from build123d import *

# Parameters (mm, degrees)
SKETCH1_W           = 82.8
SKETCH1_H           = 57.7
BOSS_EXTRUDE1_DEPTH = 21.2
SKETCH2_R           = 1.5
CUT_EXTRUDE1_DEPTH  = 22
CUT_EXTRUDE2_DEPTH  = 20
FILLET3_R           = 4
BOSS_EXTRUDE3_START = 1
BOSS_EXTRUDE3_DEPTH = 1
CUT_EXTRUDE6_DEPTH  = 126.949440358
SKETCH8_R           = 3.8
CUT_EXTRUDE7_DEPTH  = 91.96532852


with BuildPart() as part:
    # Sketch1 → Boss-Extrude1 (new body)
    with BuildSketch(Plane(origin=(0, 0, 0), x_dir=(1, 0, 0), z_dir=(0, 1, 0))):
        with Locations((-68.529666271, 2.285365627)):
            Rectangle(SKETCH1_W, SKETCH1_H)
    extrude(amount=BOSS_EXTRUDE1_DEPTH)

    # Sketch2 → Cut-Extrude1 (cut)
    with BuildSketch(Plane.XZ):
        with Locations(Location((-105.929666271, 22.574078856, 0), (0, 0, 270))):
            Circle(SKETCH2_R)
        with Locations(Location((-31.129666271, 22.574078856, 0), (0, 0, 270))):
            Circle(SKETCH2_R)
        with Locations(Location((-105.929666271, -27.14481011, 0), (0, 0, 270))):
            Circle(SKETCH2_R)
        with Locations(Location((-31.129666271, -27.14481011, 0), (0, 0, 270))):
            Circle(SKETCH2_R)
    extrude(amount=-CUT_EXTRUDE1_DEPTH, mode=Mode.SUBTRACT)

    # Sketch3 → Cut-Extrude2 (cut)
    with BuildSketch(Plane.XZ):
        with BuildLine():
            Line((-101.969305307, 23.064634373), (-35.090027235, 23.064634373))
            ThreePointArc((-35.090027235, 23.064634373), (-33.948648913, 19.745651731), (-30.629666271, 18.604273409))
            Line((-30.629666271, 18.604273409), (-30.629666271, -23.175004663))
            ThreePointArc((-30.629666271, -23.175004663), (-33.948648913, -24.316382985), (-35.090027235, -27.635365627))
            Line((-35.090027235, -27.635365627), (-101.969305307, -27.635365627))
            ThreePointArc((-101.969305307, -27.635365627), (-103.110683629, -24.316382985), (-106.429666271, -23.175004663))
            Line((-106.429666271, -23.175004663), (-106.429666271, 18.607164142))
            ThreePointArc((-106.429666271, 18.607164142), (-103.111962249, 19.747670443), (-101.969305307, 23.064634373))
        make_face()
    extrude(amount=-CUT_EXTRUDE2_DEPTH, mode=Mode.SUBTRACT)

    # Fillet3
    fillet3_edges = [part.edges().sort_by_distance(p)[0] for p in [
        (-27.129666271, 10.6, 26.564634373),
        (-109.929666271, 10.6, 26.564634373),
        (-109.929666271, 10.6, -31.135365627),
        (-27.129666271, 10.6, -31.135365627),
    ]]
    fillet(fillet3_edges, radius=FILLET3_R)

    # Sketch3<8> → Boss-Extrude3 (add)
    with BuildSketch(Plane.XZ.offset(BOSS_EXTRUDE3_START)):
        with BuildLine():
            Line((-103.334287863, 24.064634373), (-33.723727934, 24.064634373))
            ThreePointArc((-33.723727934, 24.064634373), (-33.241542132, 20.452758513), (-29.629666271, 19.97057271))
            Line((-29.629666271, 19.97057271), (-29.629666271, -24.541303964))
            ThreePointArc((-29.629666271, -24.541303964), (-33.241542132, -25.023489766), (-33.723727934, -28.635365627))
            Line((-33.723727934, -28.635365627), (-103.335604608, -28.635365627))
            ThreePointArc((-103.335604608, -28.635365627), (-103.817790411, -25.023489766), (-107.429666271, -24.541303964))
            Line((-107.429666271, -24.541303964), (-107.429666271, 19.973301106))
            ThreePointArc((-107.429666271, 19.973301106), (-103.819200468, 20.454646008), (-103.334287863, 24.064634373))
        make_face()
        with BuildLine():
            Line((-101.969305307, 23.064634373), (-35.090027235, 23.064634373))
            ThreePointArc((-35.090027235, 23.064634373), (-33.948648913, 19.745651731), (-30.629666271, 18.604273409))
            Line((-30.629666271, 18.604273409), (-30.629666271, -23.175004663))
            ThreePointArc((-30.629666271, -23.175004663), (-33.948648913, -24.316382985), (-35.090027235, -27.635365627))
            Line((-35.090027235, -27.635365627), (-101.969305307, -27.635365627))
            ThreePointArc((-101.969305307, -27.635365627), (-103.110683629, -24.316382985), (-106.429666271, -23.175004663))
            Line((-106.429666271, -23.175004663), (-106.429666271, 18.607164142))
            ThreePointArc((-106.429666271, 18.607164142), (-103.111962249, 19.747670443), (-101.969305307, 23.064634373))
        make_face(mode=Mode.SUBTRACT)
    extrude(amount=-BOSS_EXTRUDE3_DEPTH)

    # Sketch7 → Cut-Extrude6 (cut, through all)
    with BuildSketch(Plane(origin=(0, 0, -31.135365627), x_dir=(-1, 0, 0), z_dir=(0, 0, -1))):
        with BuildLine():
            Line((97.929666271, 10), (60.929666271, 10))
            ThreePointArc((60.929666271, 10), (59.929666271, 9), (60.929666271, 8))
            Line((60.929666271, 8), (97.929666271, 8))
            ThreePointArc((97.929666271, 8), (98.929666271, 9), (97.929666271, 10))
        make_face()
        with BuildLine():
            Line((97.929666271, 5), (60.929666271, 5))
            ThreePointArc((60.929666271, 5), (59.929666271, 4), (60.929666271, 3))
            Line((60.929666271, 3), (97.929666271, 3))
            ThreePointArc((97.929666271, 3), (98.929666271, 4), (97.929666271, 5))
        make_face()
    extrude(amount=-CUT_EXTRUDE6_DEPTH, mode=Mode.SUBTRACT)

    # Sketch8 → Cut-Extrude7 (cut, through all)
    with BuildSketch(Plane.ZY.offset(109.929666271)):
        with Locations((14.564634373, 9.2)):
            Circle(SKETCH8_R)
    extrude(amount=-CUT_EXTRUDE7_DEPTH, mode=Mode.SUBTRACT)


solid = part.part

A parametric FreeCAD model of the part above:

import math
import FreeCAD as App
import Part
import Sketcher
from FreeCAD import Vector
Q = App.Units.Quantity


def edges_at(feature, points):
    """Names of the edges that pass closest to the given points."""
    edges = feature.Shape.Edges
    near = lambda p: min(range(len(edges)), key=lambda i: edges[i].distToShape(Part.Vertex(*p))[0])
    return sorted({f"Edge{near(p) + 1}" for p in points})


def add_polygon(sketch, points):
    """Adds a closed chain of lines whose ends are joined by coincident constraints."""
    first, n = sketch.GeometryCount, len(points)
    for a, b in zip(points, points[1:] + points[:1]):
        sketch.addGeometry(Part.LineSegment(App.Vector(*a, 0), App.Vector(*b, 0)), False)
    for i in range(n):
        sketch.addConstraint(Sketcher.Constraint("Coincident", first + i, 2, first + (i + 1) % n, 1))

doc = App.newDocument("Part")
params = doc.addObject("Spreadsheet::Sheet", "Params")
for row, (alias, value) in enumerate([
    ("sketch1_width", "82.8 mm"),
    ("sketch1_height", "57.7 mm"),
    ("pad1_length", "21.2 mm"),
    ("sketch2_diameter", "3 mm"),
    ("pocket1_length", "22 mm"),
    ("sketch3_radius", "4 mm"),
    ("pocket2_length", "20 mm"),
    ("fillet_radius", "4 mm"),
    ("sketch4_radius", "3 mm"),
    ("sketch4_radius2", "4 mm"),
    ("pad2_length", "1 mm"),
    ("sketch5_radius", "1 mm"),
    ("sketch5_width", "37 mm"),
    ("sketch6_diameter", "7.6 mm"),
], start=1):
    params.set(f"A{row}", alias)
    params.set(f"B{row}", "=" + value)
    params.setAlias(f"B{row}", alias)

body = doc.addObject("PartDesign::Body", "Body")

# Sketch on XZ plane
sketch1 = body.newObject("Sketcher::SketchObject", "Sketch")
sketch1.AttachmentSupport = (doc.getObject("XZ_Plane"), [""])
sketch1.MapMode = "FlatFace"
add_polygon(sketch1, [(-109.929666, -31.135366), (-109.929666, 26.564634), (-27.129666, 26.564634), (-27.129666, -31.135366)])  # lines 0-3
sketch1.addConstraint(Sketcher.Constraint("Vertical", 0))
sketch1.addConstraint(Sketcher.Constraint("Horizontal", 1))
sketch1.addConstraint(Sketcher.Constraint("Vertical", 2))
sketch1.addConstraint(Sketcher.Constraint("Horizontal", 3))
sketch1.addConstraint(Sketcher.Constraint("DistanceX", 1, 1, 1, 2, Q("82.8 mm")))
sketch1.addConstraint(Sketcher.Constraint("DistanceY", 0, 1, 0, 2, Q("57.7 mm")))
sketch1.addConstraint(Sketcher.Constraint("DistanceX", 0, 2, -1, 1, Q("109.929666 mm")))
sketch1.addConstraint(Sketcher.Constraint("DistanceY", -1, 1, 0, 2, Q("26.564634 mm")))
sketch1.setExpression("Constraints[8]", "Params.sketch1_width")
sketch1.setExpression("Constraints[9]", "Params.sketch1_height")
pad1 = body.newObject("PartDesign::Pad", "Pad")
pad1.Profile = sketch1
pad1.setExpression("Length", "Params.pad1_length")
pad1.Reversed = True

# Sketch on XZ plane
sketch2 = body.newObject("Sketcher::SketchObject", "Sketch001")
sketch2.AttachmentSupport = (doc.getObject("XZ_Plane"), [""])
sketch2.MapMode = "FlatFace"
sketch2.addGeometry(Part.Circle(Vector(-105.929666, 22.574079, 0), Vector(0, 0, 1), 1.5), False)
sketch2.addGeometry(Part.Circle(Vector(-31.129666, 22.574079, 0), Vector(0, 0, 1), 1.5), False)
sketch2.addGeometry(Part.Circle(Vector(-105.929666, -27.14481, 0), Vector(0, 0, 1), 1.5), False)
sketch2.addGeometry(Part.Circle(Vector(-31.129666, -27.14481, 0), Vector(0, 0, 1), 1.5), False)
sketch2.addConstraint(Sketcher.Constraint("Equal", 0, 1))
sketch2.addConstraint(Sketcher.Constraint("Equal", 1, 2))
sketch2.addConstraint(Sketcher.Constraint("Equal", 2, 3))
sketch2.addConstraint(Sketcher.Constraint("Horizontal", 0, 3, 1, 3))
sketch2.addConstraint(Sketcher.Constraint("Horizontal", 2, 3, 3, 3))
sketch2.addConstraint(Sketcher.Constraint("Vertical", 0, 3, 2, 3))
sketch2.addConstraint(Sketcher.Constraint("Vertical", 1, 3, 3, 3))
sketch2.addConstraint(Sketcher.Constraint("Diameter", 0, Q("3 mm")))
sketch2.addConstraint(Sketcher.Constraint("DistanceX", 0, 3, 1, 3, Q("74.8 mm")))
sketch2.addConstraint(Sketcher.Constraint("DistanceY", -1, 1, 0, 3, Q("22.574079 mm")))
sketch2.addConstraint(Sketcher.Constraint("DistanceY", 2, 3, -1, 1, Q("27.14481 mm")))
sketch2.addConstraint(Sketcher.Constraint("DistanceX", 0, 3, -1, 1, Q("105.929666 mm")))
sketch2.setExpression("Constraints[7]", "Params.sketch2_diameter")
pocket1 = body.newObject("PartDesign::Pocket", "Pocket")
pocket1.Profile = sketch2
pocket1.setExpression("Length", "Params.pocket1_length")

# Sketch on XZ plane
sketch3 = body.newObject("Sketcher::SketchObject", "Sketch002")
sketch3.AttachmentSupport = (doc.getObject("XZ_Plane"), [""])
sketch3.MapMode = "FlatFace"
sketch3.addGeometry(Part.LineSegment(Vector(-35.090027, 23.064634, 0), Vector(-101.969305, 23.064634, 0)), False)
sketch3.addGeometry(Part.ArcOfCircle(Part.Circle(Vector(-105.939472, 22.577014, 0), Vector(0, 0, 1), 4), math.radians(-97.039205), math.radians(7.00206)), False)
sketch3.addGeometry(Part.LineSegment(Vector(-106.429666, 18.607164, 0), Vector(-106.429666, -23.175005, 0)), False)
sketch3.addGeometry(Part.ArcOfCircle(Part.Circle(Vector(-105.939111, -27.14481, 0), Vector(0, 0, 1), 4), math.radians(-7.044424), math.radians(97.044424)), False)
sketch3.addGeometry(Part.LineSegment(Vector(-101.969305, -27.635366, 0), Vector(-35.090027, -27.635366, 0)), False)
sketch3.addGeometry(Part.ArcOfCircle(Part.Circle(Vector(-31.120222, -27.14481, 0), Vector(0, 0, 1), 4), math.radians(82.955576), math.radians(187.044424)), False)
sketch3.addGeometry(Part.LineSegment(Vector(-30.629666, -23.175005, 0), Vector(-30.629666, 18.604273, 0)), False)
sketch3.addGeometry(Part.ArcOfCircle(Part.Circle(Vector(-31.120222, 22.574079, 0), Vector(0, 0, 1), 4), math.radians(172.955576), math.radians(277.044424)), False)
sketch3.addConstraint(Sketcher.Constraint("Coincident", 0, 2, 1, 2))
sketch3.addConstraint(Sketcher.Constraint("Coincident", 1, 1, 2, 1))
sketch3.addConstraint(Sketcher.Constraint("Coincident", 2, 2, 3, 2))
sketch3.addConstraint(Sketcher.Constraint("Coincident", 3, 1, 4, 1))
sketch3.addConstraint(Sketcher.Constraint("Coincident", 4, 2, 5, 2))
sketch3.addConstraint(Sketcher.Constraint("Coincident", 5, 1, 6, 1))
sketch3.addConstraint(Sketcher.Constraint("Coincident", 6, 2, 7, 2))
sketch3.addConstraint(Sketcher.Constraint("Coincident", 7, 1, 0, 1))
sketch3.addConstraint(Sketcher.Constraint("Horizontal", 0))
sketch3.addConstraint(Sketcher.Constraint("Vertical", 2))
sketch3.addConstraint(Sketcher.Constraint("Horizontal", 4))
sketch3.addConstraint(Sketcher.Constraint("Vertical", 6))
sketch3.addConstraint(Sketcher.Constraint("Equal", 1, 3))
sketch3.addConstraint(Sketcher.Constraint("Equal", 3, 5))
sketch3.addConstraint(Sketcher.Constraint("Equal", 5, 7))
sketch3.addConstraint(Sketcher.Constraint("Horizontal", 3, 3, 5, 3))
sketch3.addConstraint(Sketcher.Constraint("Horizontal", 2, 2, 5, 1))
sketch3.addConstraint(Sketcher.Constraint("Vertical", 5, 3, 7, 3))
sketch3.addConstraint(Sketcher.Constraint("Vertical", 0, 2, 3, 1))
sketch3.addConstraint(Sketcher.Constraint("Vertical", 4, 2, 7, 1))
sketch3.addConstraint(Sketcher.Constraint("Radius", 1, Q("4 mm")))
sketch3.addConstraint(Sketcher.Constraint("DistanceY", 3, 1, 0, 2, Q("50.7 mm")))
sketch3.addConstraint(Sketcher.Constraint("DistanceX", 0, 2, 0, 1, Q("66.879278 mm")))
sketch3.addConstraint(Sketcher.Constraint("DistanceY", 2, 2, 2, 1, Q("41.782169 mm")))
sketch3.addConstraint(Sketcher.Constraint("DistanceY", 6, 1, 6, 2, Q("41.779278 mm")))
sketch3.addConstraint(Sketcher.Constraint("DistanceX", 3, 3, -1, 1, Q("105.939111 mm")))
sketch3.addConstraint(Sketcher.Constraint("DistanceY", 3, 3, -1, 1, Q("27.14481 mm")))
sketch3.addConstraint(Sketcher.Constraint("DistanceX", 5, 3, -1, 1, Q("31.120222 mm")))
sketch3.setExpression("Constraints[20]", "Params.sketch3_radius")
pocket2 = body.newObject("PartDesign::Pocket", "Pocket001")
pocket2.Profile = sketch3
pocket2.setExpression("Length", "Params.pocket2_length")
doc.recompute()

fillet = body.newObject("PartDesign::Fillet", "Fillet")
fillet.Base = (pocket2, edges_at(pocket2, [
    (-27.13, 10.6, 26.565),
    (-109.93, 10.6, 26.565),
    (-109.93, 10.6, -31.135),
    (-27.13, 10.6, -31.135),
]))
fillet.setExpression("Radius", "Params.fillet_radius")

# Sketch on XZ plane
sketch4 = body.newObject("Sketcher::SketchObject", "Sketch003")
sketch4.AttachmentSupport = (doc.getObject("XZ_Plane"), [""])
sketch4.MapMode = "FlatFace"
sketch4.AttachmentOffset = App.Placement(Vector(0, 0, 1), App.Rotation())
sketch4.addGeometry(Part.LineSegment(Vector(-33.723728, 24.064634, 0), Vector(-103.334288, 24.064634, 0)), False)
sketch4.addGeometry(Part.ArcOfCircle(Part.Circle(Vector(-105.939472, 22.577014, 0), Vector(0, 0, 1), 3), math.radians(-119.783979), math.radians(29.727358)), False)
sketch4.addGeometry(Part.LineSegment(Vector(-107.429666, 19.973301, 0), Vector(-107.429666, -24.541304, 0)), False)
sketch4.addGeometry(Part.ArcOfCircle(Part.Circle(Vector(-105.939111, -27.14481, 0), Vector(0, 0, 1), 3), math.radians(-29.791937), math.radians(119.791937)), False)
sketch4.addGeometry(Part.LineSegment(Vector(-103.335605, -28.635366, 0), Vector(-33.723728, -28.635366, 0)), False)
sketch4.addGeometry(Part.ArcOfCircle(Part.Circle(Vector(-31.120222, -27.14481, 0), Vector(0, 0, 1), 3), math.radians(60.208063), math.radians(209.791937)), False)
sketch4.addGeometry(Part.LineSegment(Vector(-29.629666, -24.541304, 0), Vector(-29.629666, 19.970573, 0)), False)
sketch4.addGeometry(Part.ArcOfCircle(Part.Circle(Vector(-31.120222, 22.574079, 0), Vector(0, 0, 1), 3), math.radians(150.208063), math.radians(299.791937)), False)
sketch4.addGeometry(Part.LineSegment(Vector(-101.969305, 23.064634, 0), Vector(-35.090027, 23.064634, 0)), False)
sketch4.addGeometry(Part.ArcOfCircle(Part.Circle(Vector(-31.120222, 22.574079, 0), Vector(0, 0, 1), 4), math.radians(172.955576), math.radians(277.044424)), False)
sketch4.addGeometry(Part.LineSegment(Vector(-30.629666, 18.604273, 0), Vector(-30.629666, -23.175005, 0)), False)
sketch4.addGeometry(Part.ArcOfCircle(Part.Circle(Vector(-31.120222, -27.14481, 0), Vector(0, 0, 1), 4), math.radians(82.955576), math.radians(187.044424)), False)
sketch4.addGeometry(Part.LineSegment(Vector(-35.090027, -27.635366, 0), Vector(-101.969305, -27.635366, 0)), False)
sketch4.addGeometry(Part.ArcOfCircle(Part.Circle(Vector(-105.939111, -27.14481, 0), Vector(0, 0, 1), 4), math.radians(-7.044424), math.radians(97.044424)), False)
sketch4.addGeometry(Part.LineSegment(Vector(-106.429666, -23.175005, 0), Vector(-106.429666, 18.607164, 0)), False)
sketch4.addGeometry(Part.ArcOfCircle(Part.Circle(Vector(-105.939472, 22.577014, 0), Vector(0, 0, 1), 4), math.radians(-97.039205), math.radians(7.00206)), False)
sketch4.addConstraint(Sketcher.Constraint("Coincident", 0, 2, 1, 2))
sketch4.addConstraint(Sketcher.Constraint("Coincident", 1, 1, 2, 1))
sketch4.addConstraint(Sketcher.Constraint("Coincident", 2, 2, 3, 2))
sketch4.addConstraint(Sketcher.Constraint("Coincident", 3, 1, 4, 1))
sketch4.addConstraint(Sketcher.Constraint("Coincident", 4, 2, 5, 2))
sketch4.addConstraint(Sketcher.Constraint("Coincident", 5, 1, 6, 1))
sketch4.addConstraint(Sketcher.Constraint("Coincident", 6, 2, 7, 2))
sketch4.addConstraint(Sketcher.Constraint("Coincident", 7, 1, 0, 1))
sketch4.addConstraint(Sketcher.Constraint("Coincident", 8, 2, 9, 1))
sketch4.addConstraint(Sketcher.Constraint("Coincident", 9, 2, 10, 1))
sketch4.addConstraint(Sketcher.Constraint("Coincident", 10, 2, 11, 1))
sketch4.addConstraint(Sketcher.Constraint("Coincident", 11, 2, 12, 1))
sketch4.addConstraint(Sketcher.Constraint("Coincident", 12, 2, 13, 1))
sketch4.addConstraint(Sketcher.Constraint("Coincident", 13, 2, 14, 1))
sketch4.addConstraint(Sketcher.Constraint("Coincident", 14, 2, 15, 1))
sketch4.addConstraint(Sketcher.Constraint("Coincident", 15, 2, 8, 1))
sketch4.addConstraint(Sketcher.Constraint("Horizontal", 0))
sketch4.addConstraint(Sketcher.Constraint("Vertical", 2))
sketch4.addConstraint(Sketcher.Constraint("Horizontal", 4))
sketch4.addConstraint(Sketcher.Constraint("Vertical", 6))
sketch4.addConstraint(Sketcher.Constraint("Horizontal", 8))
sketch4.addConstraint(Sketcher.Constraint("Vertical", 10))
sketch4.addConstraint(Sketcher.Constraint("Horizontal", 12))
sketch4.addConstraint(Sketcher.Constraint("Vertical", 14))
sketch4.addConstraint(Sketcher.Constraint("Coincident", 9, 3, 7, 3))
sketch4.addConstraint(Sketcher.Constraint("Coincident", 11, 3, 5, 3))
sketch4.addConstraint(Sketcher.Constraint("Coincident", 13, 3, 3, 3))
sketch4.addConstraint(Sketcher.Constraint("Coincident", 15, 3, 1, 3))
sketch4.addConstraint(Sketcher.Constraint("Equal", 1, 3))
sketch4.addConstraint(Sketcher.Constraint("Equal", 3, 5))
sketch4.addConstraint(Sketcher.Constraint("Equal", 5, 7))
sketch4.addConstraint(Sketcher.Constraint("Equal", 9, 11))
sketch4.addConstraint(Sketcher.Constraint("Equal", 11, 13))
sketch4.addConstraint(Sketcher.Constraint("Equal", 13, 15))
sketch4.addConstraint(Sketcher.Constraint("Horizontal", 3, 3, 5, 3))
sketch4.addConstraint(Sketcher.Constraint("Horizontal", 2, 2, 5, 1))
sketch4.addConstraint(Sketcher.Constraint("Horizontal", 10, 2, 13, 2))
sketch4.addConstraint(Sketcher.Constraint("Vertical", 5, 3, 7, 3))
sketch4.addConstraint(Sketcher.Constraint("Vertical", 4, 2, 7, 1))
sketch4.addConstraint(Sketcher.Constraint("Vertical", 8, 2, 11, 2))
sketch4.addConstraint(Sketcher.Constraint("Vertical", 12, 2, 15, 2))
sketch4.addConstraint(Sketcher.Constraint("Radius", 1, Q("3 mm")))
sketch4.addConstraint(Sketcher.Constraint("Radius", 9, Q("4 mm")))
sketch4.addConstraint(Sketcher.Constraint("DistanceY", 8, 2, 7, 1, Q("1 mm")))
sketch4.addConstraint(Sketcher.Constraint("DistanceX", 9, 2, 6, 2, Q("1 mm")))
sketch4.addConstraint(Sketcher.Constraint("DistanceX", 0, 2, 0, 1, Q("69.61056 mm")))
sketch4.addConstraint(Sketcher.Constraint("DistanceX", 8, 1, 8, 2, Q("66.879278 mm")))
sketch4.addConstraint(Sketcher.Constraint("DistanceY", 10, 2, 10, 1, Q("41.779278 mm")))
sketch4.addConstraint(Sketcher.Constraint("DistanceY", 14, 1, 14, 2, Q("41.782169 mm")))
sketch4.addConstraint(Sketcher.Constraint("DistanceY", -1, 1, 1, 1, Q("19.973301 mm")))
sketch4.addConstraint(Sketcher.Constraint("DistanceY", 9, 2, 6, 2, Q("1.366299 mm")))
sketch4.addConstraint(Sketcher.Constraint("DistanceX", 3, 3, -1, 1, Q("105.939111 mm")))
sketch4.setExpression("Constraints[41]", "Params.sketch4_radius")
sketch4.setExpression("Constraints[42]", "Params.sketch4_radius2")
pad2 = body.newObject("PartDesign::Pad", "Pad001")
pad2.Profile = sketch4
pad2.setExpression("Length", "Params.pad2_length")
pad2.Reversed = True

# Sketch on XY plane
sketch5 = body.newObject("Sketcher::SketchObject", "Sketch004")
sketch5.AttachmentSupport = (doc.getObject("XY_Plane"), [""])
sketch5.MapMode = "FlatFace"
sketch5.AttachmentOffset = App.Placement(Vector(0, 0, -31.135366), App.Rotation())
sketch5.addGeometry(Part.LineSegment(Vector(-97.929666, 10, 0), Vector(-60.929666, 10, 0)), False)
sketch5.addGeometry(Part.ArcOfCircle(Part.Circle(Vector(-60.929666, 9, 0), Vector(0, 0, 1), 1), math.radians(-90), math.radians(90)), False)
sketch5.addGeometry(Part.LineSegment(Vector(-60.929666, 8, 0), Vector(-97.929666, 8, 0)), False)
sketch5.addGeometry(Part.ArcOfCircle(Part.Circle(Vector(-97.929666, 9, 0), Vector(0, 0, 1), 1), math.radians(90), math.radians(270)), False)
sketch5.addGeometry(Part.LineSegment(Vector(-97.929666, 5, 0), Vector(-60.929666, 5, 0)), False)
sketch5.addGeometry(Part.ArcOfCircle(Part.Circle(Vector(-60.929666, 4, 0), Vector(0, 0, 1), 1), math.radians(-90), math.radians(90)), False)
sketch5.addGeometry(Part.LineSegment(Vector(-60.929666, 3, 0), Vector(-97.929666, 3, 0)), False)
sketch5.addGeometry(Part.ArcOfCircle(Part.Circle(Vector(-97.929666, 4, 0), Vector(0, 0, 1), 1), math.radians(90), math.radians(270)), False)
sketch5.addConstraint(Sketcher.Constraint("Tangent", 0, 2, 1, 2))
sketch5.addConstraint(Sketcher.Constraint("Tangent", 1, 1, 2, 1))
sketch5.addConstraint(Sketcher.Constraint("Tangent", 2, 2, 3, 2))
sketch5.addConstraint(Sketcher.Constraint("Tangent", 3, 1, 0, 1))
sketch5.addConstraint(Sketcher.Constraint("Tangent", 4, 2, 5, 2))
sketch5.addConstraint(Sketcher.Constraint("Tangent", 5, 1, 6, 1))
sketch5.addConstraint(Sketcher.Constraint("Tangent", 6, 2, 7, 2))
sketch5.addConstraint(Sketcher.Constraint("Tangent", 7, 1, 4, 1))
sketch5.addConstraint(Sketcher.Constraint("Horizontal", 0))
sketch5.addConstraint(Sketcher.Constraint("Horizontal", 2))
sketch5.addConstraint(Sketcher.Constraint("Horizontal", 4))
sketch5.addConstraint(Sketcher.Constraint("Horizontal", 6))
sketch5.addConstraint(Sketcher.Constraint("Equal", 3, 5))
sketch5.addConstraint(Sketcher.Constraint("Vertical", 1, 3, 5, 3))
sketch5.addConstraint(Sketcher.Constraint("Vertical", 3, 3, 7, 3))
sketch5.addConstraint(Sketcher.Constraint("Radius", 1, Q("1 mm")))
sketch5.addConstraint(Sketcher.Constraint("DistanceX", 0, 1, 0, 2, Q("37 mm")))
sketch5.addConstraint(Sketcher.Constraint("DistanceY", -1, 1, 1, 3, Q("9 mm")))
sketch5.addConstraint(Sketcher.Constraint("DistanceY", -1, 1, 5, 3, Q("4 mm")))
sketch5.addConstraint(Sketcher.Constraint("DistanceX", 1, 3, -1, 1, Q("60.929666 mm")))
sketch5.setExpression("Constraints[15]", "Params.sketch5_radius")
sketch5.setExpression("Constraints[16]", "Params.sketch5_width")
pocket3 = body.newObject("PartDesign::Pocket", "Pocket002")
pocket3.Profile = sketch5
pocket3.Type = "ThroughAll"
pocket3.Reversed = True

# Sketch on YZ plane
sketch6 = body.newObject("Sketcher::SketchObject", "Sketch005")
sketch6.AttachmentSupport = (doc.getObject("YZ_Plane"), [""])
sketch6.MapMode = "FlatFace"
sketch6.AttachmentOffset = App.Placement(Vector(0, 0, -109.929666), App.Rotation())
sketch6.addGeometry(Part.Circle(Vector(9.2, 14.564634, 0), Vector(0, 0, 1), 3.8), False)
sketch6.addConstraint(Sketcher.Constraint("Diameter", 0, Q("7.6 mm")))
sketch6.addConstraint(Sketcher.Constraint("DistanceX", -1, 1, 0, 3, Q("9.2 mm")))
sketch6.addConstraint(Sketcher.Constraint("DistanceY", -1, 1, 0, 3, Q("14.564634 mm")))
sketch6.setExpression("Constraints[0]", "Params.sketch6_diameter")
pocket4 = body.newObject("PartDesign::Pocket", "Pocket003")
pocket4.Profile = sketch6
pocket4.Type = "ThroughAll"
pocket4.Reversed = True

doc.recompute()
